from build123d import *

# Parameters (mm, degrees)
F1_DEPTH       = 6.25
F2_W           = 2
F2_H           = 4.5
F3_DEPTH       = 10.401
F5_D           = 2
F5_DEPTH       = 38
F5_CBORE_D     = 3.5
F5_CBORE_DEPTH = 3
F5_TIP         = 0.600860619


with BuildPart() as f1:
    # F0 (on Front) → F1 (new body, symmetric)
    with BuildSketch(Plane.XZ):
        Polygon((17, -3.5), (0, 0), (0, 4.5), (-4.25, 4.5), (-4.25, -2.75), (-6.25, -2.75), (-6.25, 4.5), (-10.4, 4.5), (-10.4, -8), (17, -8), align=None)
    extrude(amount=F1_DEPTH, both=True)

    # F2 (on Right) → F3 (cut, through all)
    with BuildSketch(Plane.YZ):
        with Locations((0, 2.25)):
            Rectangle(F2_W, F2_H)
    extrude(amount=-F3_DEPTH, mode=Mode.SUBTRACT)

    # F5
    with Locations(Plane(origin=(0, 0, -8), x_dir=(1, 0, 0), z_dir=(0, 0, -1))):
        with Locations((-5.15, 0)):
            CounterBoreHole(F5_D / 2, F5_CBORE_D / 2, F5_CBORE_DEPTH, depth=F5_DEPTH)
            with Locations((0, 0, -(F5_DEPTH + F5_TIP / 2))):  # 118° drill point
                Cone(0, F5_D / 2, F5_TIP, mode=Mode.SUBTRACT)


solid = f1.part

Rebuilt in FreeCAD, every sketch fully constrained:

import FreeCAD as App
import Part
import Sketcher

V = App.Vector


def add_polygon(sketch, points):
    """Adds a closed chain of lines whose ends are joined by coincident constraints."""
    first, n = sketch.GeometryCount, len(points)
    for a, b in zip(points, points[1:] + points[:1]):
        sketch.addGeometry(Part.LineSegment(App.Vector(*a, 0), App.Vector(*b, 0)), False)
    for i in range(n):
        sketch.addConstraint(Sketcher.Constraint("Coincident", first + i, 2, first + (i + 1) % n, 1))

doc = App.newDocument("Part")
params = doc.addObject("Spreadsheet::Sheet", "Params")
for row, (alias, value) in enumerate([
    ("sketch1_width", "2 mm"),
    ("sketch1_width2", "27.4 mm"),
    ("sketch1_height", "4.5 mm"),
    ("sketch1_height2", "12.5 mm"),
    ("sketch1_width3", "4.25 mm"),
    ("pad1_length", "12.5 mm"),
    ("sketch2_width", "2 mm"),
    ("sketch2_height", "4.5 mm"),
    ("sketch3_diameter", "2 mm"),
    ("hole_diameter", "2 mm"),
    ("hole_depth", "38 mm"),
    ("hole_cbore_diameter", "3.5 mm"),
    ("hole_cbore_depth", "3 mm"),
], start=1):
    params.set(f"A{row}", alias)
    params.set(f"B{row}", "=" + value)
    params.setAlias(f"B{row}", alias)

body = doc.addObject("PartDesign::Body", "Body")

sketch1 = body.newObject("Sketcher::SketchObject", "Sketch")
sketch1.AttachmentSupport = (doc.getObject("XZ_Plane"), [""])
sketch1.MapMode = "FlatFace"
add_polygon(sketch1, [(17, -3.5), (0, 0), (0, 4.5), (-4.25, 4.5), (-4.25, -2.75), (-6.25, -2.75), (-6.25, 4.5), (-10.4, 4.5), (-10.4, -8), (17, -8)])
sketch1.addConstraint(Sketcher.Constraint("Vertical", 1))
sketch1.addConstraint(Sketcher.Constraint("Horizontal", 2))
sketch1.addConstraint(Sketcher.Constraint("Vertical", 3))
sketch1.addConstraint(Sketcher.Constraint("Horizontal", 4))
sketch1.addConstraint(Sketcher.Constraint("Vertical", 5))
sketch1.addConstraint(Sketcher.Constraint("Horizontal", 6))
sketch1.addConstraint(Sketcher.Constraint("Vertical", 7))
sketch1.addConstraint(Sketcher.Constraint("Horizontal", 8))
sketch1.addConstraint(Sketcher.Constraint("Vertical", 9))
sketch1.addConstraint(Sketcher.Constraint("Coincident", 0, 2, -1, 1))
sketch1.addConstraint(Sketcher.Constraint("Horizontal", 2, 2, 5, 2))
sketch1.addConstraint(Sketcher.Constraint("Equal", 1, 9))
sketch1.addConstraint(Sketcher.Constraint("DistanceX", 4, 2, 4, 1, 2.0))
sketch1.addConstraint(Sketcher.Constraint("DistanceX", 8, 1, 8, 2, 27.4))
sketch1.addConstraint(Sketcher.Constraint("DistanceY", 1, 1, 1, 2, 4.5))
sketch1.addConstraint(Sketcher.Constraint("DistanceY", 7, 2, 7, 1, 12.5))
sketch1.addConstraint(Sketcher.Constraint("DistanceX", -1, 1, 8, 2, 17.0))
sketch1.addConstraint(Sketcher.Constraint("DistanceX", 2, 2, 2, 1, 4.25))
sketch1.addConstraint(Sketcher.Constraint("DistanceY", 3, 2, 3, 1, 7.25))
sketch1.setExpression("Constraints[22]", "Params.sketch1_width")
sketch1.setExpression("Constraints[23]", "Params.sketch1_width2")
sketch1.setExpression("Constraints[24]", "Params.sketch1_height")
sketch1.setExpression("Constraints[25]", "Params.sketch1_height2")
sketch1.setExpression("Constraints[27]", "Params.sketch1_width3")
pad1 = body.newObject("PartDesign::Pad", "Pad")
pad1.Profile = sketch1
pad1.setExpression("Length", "Params.pad1_length")
pad1.Midplane = True

sketch2 = body.newObject("Sketcher::SketchObject", "Sketch001")
sketch2.AttachmentSupport = (doc.getObject("YZ_Plane"), [""])
sketch2.MapMode = "FlatFace"
add_polygon(sketch2, [(-1, 4.5), (-1, 0), (1, 0), (1, 4.5)])
sketch2.addConstraint(Sketcher.Constraint("Vertical", 0))
sketch2.addConstraint(Sketcher.Constraint("Horizontal", 1))
sketch2.addConstraint(Sketcher.Constraint("Vertical", 2))
sketch2.addConstraint(Sketcher.Constraint("Horizontal", 3))
sketch2.addConstraint(Sketcher.Constraint("Symmetric", 0, 2, 1, 2, -1, 1))
sketch2.addConstraint(Sketcher.Constraint("DistanceX", 1, 1, 1, 2, 2.0))
sketch2.addConstraint(Sketcher.Constraint("DistanceY", 0, 2, 0, 1, 4.5))
sketch2.setExpression("Constraints[9]", "Params.sketch2_width")
sketch2.setExpression("Constraints[10]", "Params.sketch2_height")
pocket1 = body.newObject("PartDesign::Pocket", "Pocket")
pocket1.Profile = sketch2
pocket1.Type = "ThroughAll"

sketch3 = body.newObject("Sketcher::SketchObject", "Sketch002")
sketch3.AttachmentSupport = (doc.getObject("XY_Plane"), [""])
sketch3.MapMode = "FlatFace"
sketch3.AttachmentOffset = App.Placement(V(0, 0, -8), App.Rotation())
sketch3.addGeometry(Part.Circle(V(-5.15, 0, 0), V(0, 0, 1), 1), False)
sketch3.addConstraint(Sketcher.Constraint("PointOnObject", 0, 3, -1))
sketch3.addConstraint(Sketcher.Constraint("Diameter", 0, 2.0))
sketch3.addConstraint(Sketcher.Constraint("DistanceX", 0, 3, -1, 1, 5.15))
sketch3.setExpression("Constraints[1]", "Params.sketch3_diameter")
doc.recompute()
hole = body.newObject("PartDesign::Hole", "Hole")
hole.Profile = sketch3
hole.ThreadType = "None"
hole.setExpression("Diameter", "Params.hole_diameter")
hole.DepthType = "Dimension"
hole.setExpression("Depth", "Params.hole_depth")
hole.DrillPoint = "Angled"
hole.DrillPointAngle = 118
hole.HoleCutType = "Counterbore"
hole.setExpression("HoleCutDiameter", "Params.hole_cbore_diameter")
hole.setExpression("HoleCutDepth", "Params.hole_cbore_depth")
hole.Reversed = True

doc.recompute()
